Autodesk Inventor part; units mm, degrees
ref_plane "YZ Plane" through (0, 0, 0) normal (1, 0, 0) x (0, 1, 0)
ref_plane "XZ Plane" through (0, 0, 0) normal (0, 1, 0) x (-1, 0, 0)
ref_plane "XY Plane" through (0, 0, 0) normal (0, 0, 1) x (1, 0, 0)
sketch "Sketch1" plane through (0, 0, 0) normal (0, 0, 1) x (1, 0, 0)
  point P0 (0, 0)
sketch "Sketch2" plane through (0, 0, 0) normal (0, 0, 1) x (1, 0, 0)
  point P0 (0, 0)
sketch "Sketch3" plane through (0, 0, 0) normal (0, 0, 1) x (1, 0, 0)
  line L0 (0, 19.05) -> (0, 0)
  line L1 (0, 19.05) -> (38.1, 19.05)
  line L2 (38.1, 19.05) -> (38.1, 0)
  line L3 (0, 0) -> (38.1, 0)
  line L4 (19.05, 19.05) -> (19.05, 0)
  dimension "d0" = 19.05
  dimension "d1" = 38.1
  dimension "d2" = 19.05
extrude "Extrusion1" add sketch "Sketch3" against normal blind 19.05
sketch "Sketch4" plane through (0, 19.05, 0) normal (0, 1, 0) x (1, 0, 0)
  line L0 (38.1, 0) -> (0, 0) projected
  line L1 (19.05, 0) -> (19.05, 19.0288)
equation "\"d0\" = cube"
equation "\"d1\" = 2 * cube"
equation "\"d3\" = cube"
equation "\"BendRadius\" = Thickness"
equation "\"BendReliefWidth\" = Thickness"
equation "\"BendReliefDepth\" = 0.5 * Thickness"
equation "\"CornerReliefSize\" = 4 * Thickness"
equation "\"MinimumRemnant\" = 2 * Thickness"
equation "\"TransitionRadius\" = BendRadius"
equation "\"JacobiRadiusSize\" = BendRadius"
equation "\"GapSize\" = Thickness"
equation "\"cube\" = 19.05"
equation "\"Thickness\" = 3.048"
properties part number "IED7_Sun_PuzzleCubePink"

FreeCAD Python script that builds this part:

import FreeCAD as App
import Part
import Sketcher
Q = App.Units.Quantity


def add_polygon(sketch, points):
    """Adds a closed chain of lines whose ends are joined by coincident constraints."""
    first, n = sketch.GeometryCount, len(points)
    for a, b in zip(points, points[1:] + points[:1]):
        sketch.addGeometry(Part.LineSegment(App.Vector(*a, 0), App.Vector(*b, 0)), False)
    for i in range(n):
        sketch.addConstraint(Sketcher.Constraint("Coincident", first + i, 2, first + (i + 1) % n, 1))

doc = App.newDocument("Part")
body = doc.addObject("PartDesign::Body", "Body")

# Sketch on XY plane
sketch1 = doc.addObject("Sketcher::SketchObject", "Sketch")
body.addObject(sketch1)
sketch1.AttachmentSupport = (doc.XY_Plane, [""])
sketch1.MapMode = "FlatFace"
add_polygon(sketch1, [(0, 19), (0, 0), (38, 0), (38, 19)])  # lines 0-3
sketch1.addConstraint([
    Sketcher.Constraint("Vertical", 0),
    Sketcher.Constraint("Horizontal", 1),
    Sketcher.Constraint("Vertical", 2),
    Sketcher.Constraint("Horizontal", 3),
    Sketcher.Constraint("Coincident", 0, 2, -1, 1),
    Sketcher.Constraint("DistanceX", 1, 1, 1, 2, Q("1.5 in")),
    Sketcher.Constraint("DistanceY", 0, 2, 0, 1, Q("0.75 in")),
])
pad1 = doc.addObject("PartDesign::Pad", "Pad")
body.addObject(pad1)
pad1.Profile = sketch1
pad1.Length = Q("0.75 in")
pad1.Reversed = True

doc.recompute()
